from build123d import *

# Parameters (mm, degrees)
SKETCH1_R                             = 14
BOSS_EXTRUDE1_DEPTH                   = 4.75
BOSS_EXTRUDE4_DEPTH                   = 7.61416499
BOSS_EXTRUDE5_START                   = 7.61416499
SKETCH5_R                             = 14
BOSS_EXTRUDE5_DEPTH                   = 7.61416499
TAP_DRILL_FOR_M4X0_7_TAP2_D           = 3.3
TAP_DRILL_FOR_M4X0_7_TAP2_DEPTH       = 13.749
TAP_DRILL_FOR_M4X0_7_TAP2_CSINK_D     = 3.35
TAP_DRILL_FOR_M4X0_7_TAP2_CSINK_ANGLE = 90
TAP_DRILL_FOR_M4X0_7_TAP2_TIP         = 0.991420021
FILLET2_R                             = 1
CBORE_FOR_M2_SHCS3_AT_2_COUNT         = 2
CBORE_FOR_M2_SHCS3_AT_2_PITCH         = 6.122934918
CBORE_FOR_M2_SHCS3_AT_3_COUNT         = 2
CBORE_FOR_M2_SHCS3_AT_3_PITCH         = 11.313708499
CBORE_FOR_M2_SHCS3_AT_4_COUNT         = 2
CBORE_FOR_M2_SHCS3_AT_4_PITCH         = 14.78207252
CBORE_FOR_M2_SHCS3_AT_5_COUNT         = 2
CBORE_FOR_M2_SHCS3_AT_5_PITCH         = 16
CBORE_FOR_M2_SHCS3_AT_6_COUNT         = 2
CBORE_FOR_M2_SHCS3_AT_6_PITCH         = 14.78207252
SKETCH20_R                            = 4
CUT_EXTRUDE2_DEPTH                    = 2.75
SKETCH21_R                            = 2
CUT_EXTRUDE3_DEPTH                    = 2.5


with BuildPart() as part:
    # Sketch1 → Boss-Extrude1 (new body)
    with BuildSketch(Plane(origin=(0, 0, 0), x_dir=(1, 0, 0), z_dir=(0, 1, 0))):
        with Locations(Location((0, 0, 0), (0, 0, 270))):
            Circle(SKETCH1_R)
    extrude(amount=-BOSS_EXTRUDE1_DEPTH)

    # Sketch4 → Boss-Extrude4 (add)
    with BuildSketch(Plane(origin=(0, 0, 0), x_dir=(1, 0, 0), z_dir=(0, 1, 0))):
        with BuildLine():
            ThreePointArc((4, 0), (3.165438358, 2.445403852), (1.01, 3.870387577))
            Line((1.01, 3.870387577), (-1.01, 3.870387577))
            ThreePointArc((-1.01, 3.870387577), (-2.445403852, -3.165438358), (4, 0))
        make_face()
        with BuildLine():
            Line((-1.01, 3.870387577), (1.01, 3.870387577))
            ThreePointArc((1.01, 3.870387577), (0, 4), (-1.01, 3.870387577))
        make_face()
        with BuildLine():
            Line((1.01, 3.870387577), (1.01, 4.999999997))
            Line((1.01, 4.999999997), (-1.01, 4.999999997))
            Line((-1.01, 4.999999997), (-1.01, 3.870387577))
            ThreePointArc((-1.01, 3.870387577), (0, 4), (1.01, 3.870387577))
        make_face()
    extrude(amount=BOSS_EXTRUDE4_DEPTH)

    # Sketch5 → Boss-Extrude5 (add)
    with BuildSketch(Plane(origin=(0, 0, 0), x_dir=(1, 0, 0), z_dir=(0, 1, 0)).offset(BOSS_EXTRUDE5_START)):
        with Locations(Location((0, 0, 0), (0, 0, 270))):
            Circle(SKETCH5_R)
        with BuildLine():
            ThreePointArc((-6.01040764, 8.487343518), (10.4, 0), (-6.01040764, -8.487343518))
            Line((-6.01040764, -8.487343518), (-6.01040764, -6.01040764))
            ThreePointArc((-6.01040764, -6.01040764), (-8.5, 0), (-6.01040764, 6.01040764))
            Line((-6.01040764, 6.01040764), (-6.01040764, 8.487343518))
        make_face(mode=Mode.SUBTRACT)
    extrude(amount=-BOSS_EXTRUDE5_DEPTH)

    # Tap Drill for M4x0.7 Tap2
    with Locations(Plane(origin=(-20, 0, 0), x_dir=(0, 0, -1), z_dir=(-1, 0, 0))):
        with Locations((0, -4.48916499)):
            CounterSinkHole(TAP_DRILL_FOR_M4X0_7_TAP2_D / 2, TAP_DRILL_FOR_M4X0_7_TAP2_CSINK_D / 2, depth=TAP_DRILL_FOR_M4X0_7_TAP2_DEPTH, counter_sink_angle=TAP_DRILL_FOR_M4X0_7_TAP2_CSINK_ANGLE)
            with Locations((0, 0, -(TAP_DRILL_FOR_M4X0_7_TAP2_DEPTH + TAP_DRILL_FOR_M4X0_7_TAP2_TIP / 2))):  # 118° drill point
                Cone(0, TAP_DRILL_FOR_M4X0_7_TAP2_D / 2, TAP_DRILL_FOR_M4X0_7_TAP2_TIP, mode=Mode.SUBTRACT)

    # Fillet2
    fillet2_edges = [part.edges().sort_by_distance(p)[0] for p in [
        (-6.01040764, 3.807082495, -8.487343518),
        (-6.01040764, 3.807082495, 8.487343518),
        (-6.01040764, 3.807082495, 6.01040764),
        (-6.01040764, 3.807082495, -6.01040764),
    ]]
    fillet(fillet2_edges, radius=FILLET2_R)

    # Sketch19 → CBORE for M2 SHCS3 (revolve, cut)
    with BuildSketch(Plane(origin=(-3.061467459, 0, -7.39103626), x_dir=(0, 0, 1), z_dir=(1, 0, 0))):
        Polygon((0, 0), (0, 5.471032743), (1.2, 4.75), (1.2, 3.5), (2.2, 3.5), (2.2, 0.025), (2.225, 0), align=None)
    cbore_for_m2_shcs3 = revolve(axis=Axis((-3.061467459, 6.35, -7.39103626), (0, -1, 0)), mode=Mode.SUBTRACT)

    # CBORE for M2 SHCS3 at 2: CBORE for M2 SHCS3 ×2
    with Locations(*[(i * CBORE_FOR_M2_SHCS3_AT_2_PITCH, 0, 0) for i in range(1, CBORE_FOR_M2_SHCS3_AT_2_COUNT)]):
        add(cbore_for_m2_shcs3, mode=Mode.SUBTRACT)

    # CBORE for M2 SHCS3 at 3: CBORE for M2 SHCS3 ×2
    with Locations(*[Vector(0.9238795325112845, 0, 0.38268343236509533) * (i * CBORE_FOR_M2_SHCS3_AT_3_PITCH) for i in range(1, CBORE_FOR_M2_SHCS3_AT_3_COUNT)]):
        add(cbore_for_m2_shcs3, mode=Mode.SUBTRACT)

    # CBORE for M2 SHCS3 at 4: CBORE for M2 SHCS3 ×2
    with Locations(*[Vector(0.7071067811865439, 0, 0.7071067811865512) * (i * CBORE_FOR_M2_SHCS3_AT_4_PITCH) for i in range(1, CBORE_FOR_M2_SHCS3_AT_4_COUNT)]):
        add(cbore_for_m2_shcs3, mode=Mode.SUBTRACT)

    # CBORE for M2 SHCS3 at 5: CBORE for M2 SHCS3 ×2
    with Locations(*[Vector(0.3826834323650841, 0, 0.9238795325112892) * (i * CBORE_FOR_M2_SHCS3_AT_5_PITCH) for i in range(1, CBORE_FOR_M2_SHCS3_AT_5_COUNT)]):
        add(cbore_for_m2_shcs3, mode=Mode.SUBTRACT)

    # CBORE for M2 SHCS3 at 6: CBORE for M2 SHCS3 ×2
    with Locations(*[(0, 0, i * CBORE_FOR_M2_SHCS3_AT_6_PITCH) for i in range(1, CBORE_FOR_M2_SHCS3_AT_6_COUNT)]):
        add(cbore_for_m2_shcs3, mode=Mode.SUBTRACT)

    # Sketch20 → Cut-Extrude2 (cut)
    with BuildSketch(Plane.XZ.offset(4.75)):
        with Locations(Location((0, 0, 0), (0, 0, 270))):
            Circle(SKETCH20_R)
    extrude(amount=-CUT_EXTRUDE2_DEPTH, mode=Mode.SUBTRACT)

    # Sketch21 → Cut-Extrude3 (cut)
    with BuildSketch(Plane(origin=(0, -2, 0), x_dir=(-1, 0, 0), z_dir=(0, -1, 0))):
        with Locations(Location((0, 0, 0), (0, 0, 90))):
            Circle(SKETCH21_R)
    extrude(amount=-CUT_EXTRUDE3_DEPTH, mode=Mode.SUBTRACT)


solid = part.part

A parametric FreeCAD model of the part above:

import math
import FreeCAD as App
import Part
import Sketcher
from FreeCAD import Vector
Q = App.Units.Quantity


def edges_at(feature, points):
    """Names of the edges that pass closest to the given points."""
    edges = feature.Shape.Edges
    near = lambda p: min(range(len(edges)), key=lambda i: edges[i].distToShape(Part.Vertex(*p))[0])
    return sorted({f"Edge{near(p) + 1}" for p in points})

doc = App.newDocument("Part")
params = doc.addObject("Spreadsheet::Sheet", "Params")
for row, (alias, value) in enumerate([
    ("sketch1_diameter", "28 mm"),
    ("pad1_length", "4.75 mm"),
    ("sketch2_radius", "4 mm"),
    ("sketch2_width", "2.02 mm"),
    ("pad2_length", "7.614165 mm"),
    ("sketch3_diameter", "28 mm"),
    ("sketch3_radius", "10.4 mm"),
    ("sketch3_radius2", "8.5 mm"),
    ("pad3_length", "7.614165 mm"),
    ("sketch4_diameter", "3.3 mm"),
    ("hole_diameter", "3.3 mm"),
    ("hole_depth", "13.749 mm"),
    ("hole_csink_diameter", "3.35 mm"),
    ("fillet_radius", "1 mm"),
    ("sketch5_height", "1 mm"),
    ("sketch5_width", "1.25 mm"),
    ("groove_angle", "360 deg"),
    ("linearpattern_pitch", "6.122935 mm"),
    ("linearpattern2_pitch", "11.313708 mm"),
    ("linearpattern3_pitch", "14.782073 mm"),
    ("linearpattern4_pitch", "16 mm"),
    ("linearpattern5_pitch", "14.782073 mm"),
    ("sketch6_diameter", "8 mm"),
    ("pocket1_length", "2.75 mm"),
    ("sketch7_diameter", "4 mm"),
    ("pocket2_length", "2.5 mm"),
], start=1):
    params.set(f"A{row}", alias)
    params.set(f"B{row}", "=" + value)
    params.setAlias(f"B{row}", alias)

body = doc.addObject("PartDesign::Body", "Body")

# Sketch on XZ plane
sketch1 = body.newObject("Sketcher::SketchObject", "Sketch")
sketch1.AttachmentSupport = (doc.getObject("XZ_Plane"), [""])
sketch1.MapMode = "FlatFace"
sketch1.addGeometry(Part.Circle(Vector(0, 0, 0), Vector(0, 0, 1), 14), False)
sketch1.addConstraint(Sketcher.Constraint("Coincident", 0, 3, -1, 1))
sketch1.addConstraint(Sketcher.Constraint("Diameter", 0, 28.0))
sketch1.setExpression("Constraints[1]", "Params.sketch1_diameter")
pad1 = body.newObject("PartDesign::Pad", "Pad")
pad1.Profile = sketch1
pad1.setExpression("Length", "Params.pad1_length")

# Sketch on XZ plane
sketch2 = body.newObject("Sketcher::SketchObject", "Sketch001")
sketch2.AttachmentSupport = (doc.getObject("XZ_Plane"), [""])
sketch2.MapMode = "FlatFace"
sketch2.addGeometry(Part.ArcOfCircle(Part.Circle(Vector(0, 0, 0), Vector(0, 0, 1), 4), math.radians(-75), math.radians(0)), False)
sketch2.addGeometry(Part.LineSegment(Vector(1, -3.9, 0), Vector(1, -5, 0)), False)
sketch2.addGeometry(Part.LineSegment(Vector(1, -5, 0), Vector(-1, -5, 0)), False)
sketch2.addGeometry(Part.LineSegment(Vector(-1, -5, 0), Vector(-1, -3.9, 0)), False)
sketch2.addGeometry(Part.ArcOfCircle(Part.Circle(Vector(0, 0, 0), Vector(0, 0, 1), 4), math.radians(0), math.radians(255)), False)
sketch2.addConstraint(Sketcher.Constraint("Coincident", 0, 1, 1, 1))
sketch2.addConstraint(Sketcher.Constraint("Coincident", 1, 2, 2, 1))
sketch2.addConstraint(Sketcher.Constraint("Coincident", 2, 2, 3, 1))
sketch2.addConstraint(Sketcher.Constraint("Coincident", 3, 2, 4, 2))
sketch2.addConstraint(Sketcher.Constraint("Tangent", 4, 1, 0, 2))
sketch2.addConstraint(Sketcher.Constraint("Vertical", 1))
sketch2.addConstraint(Sketcher.Constraint("Horizontal", 2))
sketch2.addConstraint(Sketcher.Constraint("Vertical", 3))
sketch2.addConstraint(Sketcher.Constraint("Coincident", 0, 3, -1, 1))
sketch2.addConstraint(Sketcher.Constraint("Equal", 0, 4))
sketch2.addConstraint(Sketcher.Constraint("PointOnObject", 4, 1, -1))
sketch2.addConstraint(Sketcher.Constraint("Horizontal", 0, 1, 3, 2))
sketch2.addConstraint(Sketcher.Constraint("Radius", 0, 4.0))
sketch2.addConstraint(Sketcher.Constraint("DistanceY", 1, 2, -1, 1, 5.0))
sketch2.addConstraint(Sketcher.Constraint("DistanceX", 2, 2, 2, 1, 2.02))
sketch2.setExpression("Constraints[12]", "Params.sketch2_radius")
sketch2.setExpression("Constraints[14]", "Params.sketch2_width")
pad2 = body.newObject("PartDesign::Pad", "Pad001")
pad2.Profile = sketch2
pad2.setExpression("Length", "Params.pad2_length")
pad2.Reversed = True

# Sketch on XZ plane
sketch3 = body.newObject("Sketcher::SketchObject", "Sketch002")
sketch3.AttachmentSupport = (doc.getObject("XZ_Plane"), [""])
sketch3.MapMode = "FlatFace"
sketch3.AttachmentOffset = App.Placement(Vector(0, 0, -7.614165), App.Rotation())
sketch3.addGeometry(Part.Circle(Vector(0, 0, 0), Vector(0, 0, 1), 14), False)
sketch3.addGeometry(Part.LineSegment(Vector(-6, -6, 0), Vector(-6, -8.5, 0)), False)
sketch3.addGeometry(Part.ArcOfCircle(Part.Circle(Vector(0, 0, 0), Vector(0, 0, 1), 10.4), math.radians(-125), math.radians(125)), False)
sketch3.addGeometry(Part.LineSegment(Vector(-6, 8.5, 0), Vector(-6, 6, 0)), False)
sketch3.addGeometry(Part.ArcOfCircle(Part.Circle(Vector(0, 0, 0), Vector(0, 0, 1), 8.5), math.radians(135), math.radians(225)), False)
sketch3.addConstraint(Sketcher.Constraint("Coincident", 1, 2, 2, 1))
sketch3.addConstraint(Sketcher.Constraint("Coincident", 2, 2, 3, 1))
sketch3.addConstraint(Sketcher.Constraint("Coincident", 3, 2, 4, 1))
sketch3.addConstraint(Sketcher.Constraint("Coincident", 4, 2, 1, 1))
sketch3.addConstraint(Sketcher.Constraint("Vertical", 1))
sketch3.addConstraint(Sketcher.Constraint("Vertical", 3))
sketch3.addConstraint(Sketcher.Constraint("Coincident", 0, 3, -1, 1))
sketch3.addConstraint(Sketcher.Constraint("Coincident", 2, 3, -1, 1))
sketch3.addConstraint(Sketcher.Constraint("Coincident", 4, 3, -1, 1))
sketch3.addConstraint(Sketcher.Constraint("Vertical", 1, 2, 2, 2))
sketch3.addConstraint(Sketcher.Constraint("Diameter", 0, 28.0))
sketch3.addConstraint(Sketcher.Constraint("Radius", 2, 10.4))
sketch3.addConstraint(Sketcher.Constraint("Radius", 4, 8.5))
sketch3.addConstraint(Sketcher.Constraint("DistanceY", 1, 2, 1, 1, 2.476936))
sketch3.setExpression("Constraints[10]", "Params.sketch3_diameter")
sketch3.setExpression("Constraints[11]", "Params.sketch3_radius")
sketch3.setExpression("Constraints[12]", "Params.sketch3_radius2")
pad3 = body.newObject("PartDesign::Pad", "Pad002")
pad3.Profile = sketch3
pad3.setExpression("Length", "Params.pad3_length")

# Sketch on YZ plane
sketch4 = body.newObject("Sketcher::SketchObject", "Sketch003")
sketch4.AttachmentSupport = (doc.getObject("YZ_Plane"), [""])
sketch4.MapMode = "FlatFace"
sketch4.AttachmentOffset = App.Placement(Vector(0, 0, -20), App.Rotation())
sketch4.addGeometry(Part.Circle(Vector(4.5, 0, 0), Vector(0, 0, 1), 1.6), False)
sketch4.addConstraint(Sketcher.Constraint("PointOnObject", 0, 3, -1))
sketch4.addConstraint(Sketcher.Constraint("Diameter", 0, 3.3))
sketch4.addConstraint(Sketcher.Constraint("DistanceX", -1, 1, 0, 3, 4.489165))
sketch4.setExpression("Constraints[1]", "Params.sketch4_diameter")
doc.recompute()
hole = body.newObject("PartDesign::Hole", "Hole")
hole.Profile = sketch4
hole.ThreadType = "None"
hole.setExpression("Diameter", "Params.hole_diameter")
hole.DepthType = "Dimension"
hole.setExpression("Depth", "Params.hole_depth")
hole.DrillPoint = "Angled"
hole.DrillPointAngle = 118
hole.HoleCutType = "Countersink"
hole.setExpression("HoleCutDiameter", "Params.hole_csink_diameter")
hole.HoleCutCountersinkAngle = 90
hole.Reversed = True
doc.recompute()

fillet = body.newObject("PartDesign::Fillet", "Fillet")
fillet.Base = (hole, edges_at(hole, [
    (-6.01, 3.807, -8.487),
    (-6.01, 3.807, 8.487),
    (-6.01, 3.807, 6.01),
    (-6.01, 3.807, -6.01),
]))
fillet.setExpression("Radius", "Params.fillet_radius")

# Sketch on YZ plane
sketch5 = body.newObject("Sketcher::SketchObject", "Sketch004")
sketch5.AttachmentSupport = (doc.getObject("YZ_Plane"), [""])
sketch5.MapMode = "FlatFace"
sketch5.AttachmentOffset = App.Placement(Vector(0, 0, -3.061467), App.Rotation())
sketch5.addGeometry(Part.LineSegment(Vector(-5.471, -7.391, 0), Vector(0, -7.391, 0)), False)
sketch5.addGeometry(Part.LineSegment(Vector(0, -7.391, 0), Vector(0, -5.166, 0)), False)
sketch5.addGeometry(Part.LineSegment(Vector(0, -5.166, 0), Vector(-0.025, -5.191, 0)), False)
sketch5.addGeometry(Part.LineSegment(Vector(-0.025, -5.191, 0), Vector(-3.5, -5.191, 0)), False)
sketch5.addGeometry(Part.LineSegment(Vector(-3.5, -5.191, 0), Vector(-3.5, -6.191, 0)), False)
sketch5.addGeometry(Part.LineSegment(Vector(-3.5, -6.191, 0), Vector(-4.75, -6.191, 0)), False)
sketch5.addGeometry(Part.LineSegment(Vector(-4.75, -6.191, 0), Vector(-5.471, -7.391, 0)), False)
sketch5.addGeometry(Part.LineSegment(Vector(0, -7.391, 0), Vector(-5.471, -7.391, 0)), True)  # axis
sketch5.addConstraint(Sketcher.Constraint("Coincident", 0, 2, 1, 1))
sketch5.addConstraint(Sketcher.Constraint("Coincident", 1, 2, 2, 1))
sketch5.addConstraint(Sketcher.Constraint("Coincident", 2, 2, 3, 1))
sketch5.addConstraint(Sketcher.Constraint("Coincident", 3, 2, 4, 1))
sketch5.addConstraint(Sketcher.Constraint("Coincident", 4, 2, 5, 1))
sketch5.addConstraint(Sketcher.Constraint("Coincident", 5, 2, 6, 1))
sketch5.addConstraint(Sketcher.Constraint("Coincident", 6, 2, 0, 1))
sketch5.addConstraint(Sketcher.Constraint("Horizontal", 0))
sketch5.addConstraint(Sketcher.Constraint("Vertical", 1))
sketch5.addConstraint(Sketcher.Constraint("Horizontal", 3))
sketch5.addConstraint(Sketcher.Constraint("Vertical", 4))
sketch5.addConstraint(Sketcher.Constraint("Horizontal", 5))
sketch5.addConstraint(Sketcher.Constraint("Horizontal", 7))
sketch5.addConstraint(Sketcher.Constraint("Coincident", 7, 1, 0, 2))
sketch5.addConstraint(Sketcher.Constraint("PointOnObject", 0, 2, -2))
sketch5.addConstraint(Sketcher.Constraint("Equal", 0, 7))
sketch5.addConstraint(Sketcher.Constraint("DistanceY", 4, 2, 4, 1, 1.0))
sketch5.addConstraint(Sketcher.Constraint("Angle", 2, Q("-135 deg")))
sketch5.addConstraint(Sketcher.Constraint("Angle", 6, Q("-121 deg")))
sketch5.addConstraint(Sketcher.Constraint("DistanceX", 5, 2, 5, 1, 1.25))
sketch5.addConstraint(Sketcher.Constraint("DistanceX", 3, 2, -1, 1, 3.5))
sketch5.addConstraint(Sketcher.Constraint("DistanceY", 0, 2, 2, 2, 2.2))
sketch5.addConstraint(Sketcher.Constraint("DistanceX", 3, 2, 3, 1, 3.475))
sketch5.addConstraint(Sketcher.Constraint("DistanceY", 0, 2, -1, 1, 7.391036))
sketch5.setExpression("Constraints[16]", "Params.sketch5_height")
sketch5.setExpression("Constraints[19]", "Params.sketch5_width")
groove = body.newObject("PartDesign::Groove", "Groove")
groove.Profile = sketch5
groove.ReferenceAxis = (sketch5, ["Axis0"])
groove.setExpression("Angle", "Params.groove_angle")
doc.recompute()

linearpattern = body.newObject("PartDesign::LinearPattern", "LinearPattern")
linearpattern.Originals = [groove]
linearpattern.Direction = (doc.getObject("X_Axis"), [""])
linearpattern.Mode = "offset"
linearpattern.setExpression("Offset", "Params.linearpattern_pitch")
linearpattern.Occurrences = 2
body.Tip = linearpattern
doc.recompute()

datumline = body.newObject("PartDesign::Line", "DatumLine")
datumline.Placement = App.Placement(Vector(0, 0, 0), App.Rotation(Vector(0, 0, 1), Vector(0.923879533, 0, 0.382683432)))
linearpattern2 = body.newObject("PartDesign::LinearPattern", "LinearPattern001")
linearpattern2.Originals = [groove]
linearpattern2.Direction = (datumline, [""])
linearpattern2.Mode = "offset"
linearpattern2.setExpression("Offset", "Params.linearpattern2_pitch")
linearpattern2.Occurrences = 2
body.Tip = linearpattern2
doc.recompute()

datumline2 = body.newObject("PartDesign::Line", "DatumLine001")
datumline2.Placement = App.Placement(Vector(0, 0, 0), App.Rotation(Vector(0, 0, 1), Vector(0.707106781, 0, 0.707106781)))
linearpattern3 = body.newObject("PartDesign::LinearPattern", "LinearPattern002")
linearpattern3.Originals = [groove]
linearpattern3.Direction = (datumline2, [""])
linearpattern3.Mode = "offset"
linearpattern3.setExpression("Offset", "Params.linearpattern3_pitch")
linearpattern3.Occurrences = 2
body.Tip = linearpattern3
doc.recompute()

datumline3 = body.newObject("PartDesign::Line", "DatumLine002")
datumline3.Placement = App.Placement(Vector(0, 0, 0), App.Rotation(Vector(0, 0, 1), Vector(0.382683432, 0, 0.923879533)))
linearpattern4 = body.newObject("PartDesign::LinearPattern", "LinearPattern003")
linearpattern4.Originals = [groove]
linearpattern4.Direction = (datumline3, [""])
linearpattern4.Mode = "offset"
linearpattern4.setExpression("Offset", "Params.linearpattern4_pitch")
linearpattern4.Occurrences = 2
body.Tip = linearpattern4
doc.recompute()

linearpattern5 = body.newObject("PartDesign::LinearPattern", "LinearPattern004")
linearpattern5.Originals = [groove]
linearpattern5.Direction = (doc.getObject("Z_Axis"), [""])
linearpattern5.Mode = "offset"
linearpattern5.setExpression("Offset", "Params.linearpattern5_pitch")
linearpattern5.Occurrences = 2
body.Tip = linearpattern5

# Sketch on XZ plane
sketch6 = body.newObject("Sketcher::SketchObject", "Sketch005")
sketch6.AttachmentSupport = (doc.getObject("XZ_Plane"), [""])
sketch6.MapMode = "FlatFace"
sketch6.AttachmentOffset = App.Placement(Vector(0, 0, 4.75), App.Rotation())
sketch6.addGeometry(Part.Circle(Vector(0, 0, 0), Vector(0, 0, 1), 4), False)
sketch6.addConstraint(Sketcher.Constraint("Coincident", 0, 3, -1, 1))
sketch6.addConstraint(Sketcher.Constraint("Diameter", 0, 8.0))
sketch6.setExpression("Constraints[1]", "Params.sketch6_diameter")
pocket1 = body.newObject("PartDesign::Pocket", "Pocket")
pocket1.Profile = sketch6
pocket1.setExpression("Length", "Params.pocket1_length")

# Sketch on XZ plane
sketch7 = body.newObject("Sketcher::SketchObject", "Sketch006")
sketch7.AttachmentSupport = (doc.getObject("XZ_Plane"), [""])
sketch7.MapMode = "FlatFace"
sketch7.AttachmentOffset = App.Placement(Vector(0, 0, 2), App.Rotation())
sketch7.addGeometry(Part.Circle(Vector(0, 0, 0), Vector(0, 0, 1), 2), False)
sketch7.addConstraint(Sketcher.Constraint("Coincident", 0, 3, -1, 1))
sketch7.addConstraint(Sketcher.Constraint("Diameter", 0, 4.0))
sketch7.setExpression("Constraints[1]", "Params.sketch7_diameter")
pocket2 = body.newObject("PartDesign::Pocket", "Pocket001")
pocket2.Profile = sketch7
pocket2.setExpression("Length", "Params.pocket2_length")

doc.recompute()
